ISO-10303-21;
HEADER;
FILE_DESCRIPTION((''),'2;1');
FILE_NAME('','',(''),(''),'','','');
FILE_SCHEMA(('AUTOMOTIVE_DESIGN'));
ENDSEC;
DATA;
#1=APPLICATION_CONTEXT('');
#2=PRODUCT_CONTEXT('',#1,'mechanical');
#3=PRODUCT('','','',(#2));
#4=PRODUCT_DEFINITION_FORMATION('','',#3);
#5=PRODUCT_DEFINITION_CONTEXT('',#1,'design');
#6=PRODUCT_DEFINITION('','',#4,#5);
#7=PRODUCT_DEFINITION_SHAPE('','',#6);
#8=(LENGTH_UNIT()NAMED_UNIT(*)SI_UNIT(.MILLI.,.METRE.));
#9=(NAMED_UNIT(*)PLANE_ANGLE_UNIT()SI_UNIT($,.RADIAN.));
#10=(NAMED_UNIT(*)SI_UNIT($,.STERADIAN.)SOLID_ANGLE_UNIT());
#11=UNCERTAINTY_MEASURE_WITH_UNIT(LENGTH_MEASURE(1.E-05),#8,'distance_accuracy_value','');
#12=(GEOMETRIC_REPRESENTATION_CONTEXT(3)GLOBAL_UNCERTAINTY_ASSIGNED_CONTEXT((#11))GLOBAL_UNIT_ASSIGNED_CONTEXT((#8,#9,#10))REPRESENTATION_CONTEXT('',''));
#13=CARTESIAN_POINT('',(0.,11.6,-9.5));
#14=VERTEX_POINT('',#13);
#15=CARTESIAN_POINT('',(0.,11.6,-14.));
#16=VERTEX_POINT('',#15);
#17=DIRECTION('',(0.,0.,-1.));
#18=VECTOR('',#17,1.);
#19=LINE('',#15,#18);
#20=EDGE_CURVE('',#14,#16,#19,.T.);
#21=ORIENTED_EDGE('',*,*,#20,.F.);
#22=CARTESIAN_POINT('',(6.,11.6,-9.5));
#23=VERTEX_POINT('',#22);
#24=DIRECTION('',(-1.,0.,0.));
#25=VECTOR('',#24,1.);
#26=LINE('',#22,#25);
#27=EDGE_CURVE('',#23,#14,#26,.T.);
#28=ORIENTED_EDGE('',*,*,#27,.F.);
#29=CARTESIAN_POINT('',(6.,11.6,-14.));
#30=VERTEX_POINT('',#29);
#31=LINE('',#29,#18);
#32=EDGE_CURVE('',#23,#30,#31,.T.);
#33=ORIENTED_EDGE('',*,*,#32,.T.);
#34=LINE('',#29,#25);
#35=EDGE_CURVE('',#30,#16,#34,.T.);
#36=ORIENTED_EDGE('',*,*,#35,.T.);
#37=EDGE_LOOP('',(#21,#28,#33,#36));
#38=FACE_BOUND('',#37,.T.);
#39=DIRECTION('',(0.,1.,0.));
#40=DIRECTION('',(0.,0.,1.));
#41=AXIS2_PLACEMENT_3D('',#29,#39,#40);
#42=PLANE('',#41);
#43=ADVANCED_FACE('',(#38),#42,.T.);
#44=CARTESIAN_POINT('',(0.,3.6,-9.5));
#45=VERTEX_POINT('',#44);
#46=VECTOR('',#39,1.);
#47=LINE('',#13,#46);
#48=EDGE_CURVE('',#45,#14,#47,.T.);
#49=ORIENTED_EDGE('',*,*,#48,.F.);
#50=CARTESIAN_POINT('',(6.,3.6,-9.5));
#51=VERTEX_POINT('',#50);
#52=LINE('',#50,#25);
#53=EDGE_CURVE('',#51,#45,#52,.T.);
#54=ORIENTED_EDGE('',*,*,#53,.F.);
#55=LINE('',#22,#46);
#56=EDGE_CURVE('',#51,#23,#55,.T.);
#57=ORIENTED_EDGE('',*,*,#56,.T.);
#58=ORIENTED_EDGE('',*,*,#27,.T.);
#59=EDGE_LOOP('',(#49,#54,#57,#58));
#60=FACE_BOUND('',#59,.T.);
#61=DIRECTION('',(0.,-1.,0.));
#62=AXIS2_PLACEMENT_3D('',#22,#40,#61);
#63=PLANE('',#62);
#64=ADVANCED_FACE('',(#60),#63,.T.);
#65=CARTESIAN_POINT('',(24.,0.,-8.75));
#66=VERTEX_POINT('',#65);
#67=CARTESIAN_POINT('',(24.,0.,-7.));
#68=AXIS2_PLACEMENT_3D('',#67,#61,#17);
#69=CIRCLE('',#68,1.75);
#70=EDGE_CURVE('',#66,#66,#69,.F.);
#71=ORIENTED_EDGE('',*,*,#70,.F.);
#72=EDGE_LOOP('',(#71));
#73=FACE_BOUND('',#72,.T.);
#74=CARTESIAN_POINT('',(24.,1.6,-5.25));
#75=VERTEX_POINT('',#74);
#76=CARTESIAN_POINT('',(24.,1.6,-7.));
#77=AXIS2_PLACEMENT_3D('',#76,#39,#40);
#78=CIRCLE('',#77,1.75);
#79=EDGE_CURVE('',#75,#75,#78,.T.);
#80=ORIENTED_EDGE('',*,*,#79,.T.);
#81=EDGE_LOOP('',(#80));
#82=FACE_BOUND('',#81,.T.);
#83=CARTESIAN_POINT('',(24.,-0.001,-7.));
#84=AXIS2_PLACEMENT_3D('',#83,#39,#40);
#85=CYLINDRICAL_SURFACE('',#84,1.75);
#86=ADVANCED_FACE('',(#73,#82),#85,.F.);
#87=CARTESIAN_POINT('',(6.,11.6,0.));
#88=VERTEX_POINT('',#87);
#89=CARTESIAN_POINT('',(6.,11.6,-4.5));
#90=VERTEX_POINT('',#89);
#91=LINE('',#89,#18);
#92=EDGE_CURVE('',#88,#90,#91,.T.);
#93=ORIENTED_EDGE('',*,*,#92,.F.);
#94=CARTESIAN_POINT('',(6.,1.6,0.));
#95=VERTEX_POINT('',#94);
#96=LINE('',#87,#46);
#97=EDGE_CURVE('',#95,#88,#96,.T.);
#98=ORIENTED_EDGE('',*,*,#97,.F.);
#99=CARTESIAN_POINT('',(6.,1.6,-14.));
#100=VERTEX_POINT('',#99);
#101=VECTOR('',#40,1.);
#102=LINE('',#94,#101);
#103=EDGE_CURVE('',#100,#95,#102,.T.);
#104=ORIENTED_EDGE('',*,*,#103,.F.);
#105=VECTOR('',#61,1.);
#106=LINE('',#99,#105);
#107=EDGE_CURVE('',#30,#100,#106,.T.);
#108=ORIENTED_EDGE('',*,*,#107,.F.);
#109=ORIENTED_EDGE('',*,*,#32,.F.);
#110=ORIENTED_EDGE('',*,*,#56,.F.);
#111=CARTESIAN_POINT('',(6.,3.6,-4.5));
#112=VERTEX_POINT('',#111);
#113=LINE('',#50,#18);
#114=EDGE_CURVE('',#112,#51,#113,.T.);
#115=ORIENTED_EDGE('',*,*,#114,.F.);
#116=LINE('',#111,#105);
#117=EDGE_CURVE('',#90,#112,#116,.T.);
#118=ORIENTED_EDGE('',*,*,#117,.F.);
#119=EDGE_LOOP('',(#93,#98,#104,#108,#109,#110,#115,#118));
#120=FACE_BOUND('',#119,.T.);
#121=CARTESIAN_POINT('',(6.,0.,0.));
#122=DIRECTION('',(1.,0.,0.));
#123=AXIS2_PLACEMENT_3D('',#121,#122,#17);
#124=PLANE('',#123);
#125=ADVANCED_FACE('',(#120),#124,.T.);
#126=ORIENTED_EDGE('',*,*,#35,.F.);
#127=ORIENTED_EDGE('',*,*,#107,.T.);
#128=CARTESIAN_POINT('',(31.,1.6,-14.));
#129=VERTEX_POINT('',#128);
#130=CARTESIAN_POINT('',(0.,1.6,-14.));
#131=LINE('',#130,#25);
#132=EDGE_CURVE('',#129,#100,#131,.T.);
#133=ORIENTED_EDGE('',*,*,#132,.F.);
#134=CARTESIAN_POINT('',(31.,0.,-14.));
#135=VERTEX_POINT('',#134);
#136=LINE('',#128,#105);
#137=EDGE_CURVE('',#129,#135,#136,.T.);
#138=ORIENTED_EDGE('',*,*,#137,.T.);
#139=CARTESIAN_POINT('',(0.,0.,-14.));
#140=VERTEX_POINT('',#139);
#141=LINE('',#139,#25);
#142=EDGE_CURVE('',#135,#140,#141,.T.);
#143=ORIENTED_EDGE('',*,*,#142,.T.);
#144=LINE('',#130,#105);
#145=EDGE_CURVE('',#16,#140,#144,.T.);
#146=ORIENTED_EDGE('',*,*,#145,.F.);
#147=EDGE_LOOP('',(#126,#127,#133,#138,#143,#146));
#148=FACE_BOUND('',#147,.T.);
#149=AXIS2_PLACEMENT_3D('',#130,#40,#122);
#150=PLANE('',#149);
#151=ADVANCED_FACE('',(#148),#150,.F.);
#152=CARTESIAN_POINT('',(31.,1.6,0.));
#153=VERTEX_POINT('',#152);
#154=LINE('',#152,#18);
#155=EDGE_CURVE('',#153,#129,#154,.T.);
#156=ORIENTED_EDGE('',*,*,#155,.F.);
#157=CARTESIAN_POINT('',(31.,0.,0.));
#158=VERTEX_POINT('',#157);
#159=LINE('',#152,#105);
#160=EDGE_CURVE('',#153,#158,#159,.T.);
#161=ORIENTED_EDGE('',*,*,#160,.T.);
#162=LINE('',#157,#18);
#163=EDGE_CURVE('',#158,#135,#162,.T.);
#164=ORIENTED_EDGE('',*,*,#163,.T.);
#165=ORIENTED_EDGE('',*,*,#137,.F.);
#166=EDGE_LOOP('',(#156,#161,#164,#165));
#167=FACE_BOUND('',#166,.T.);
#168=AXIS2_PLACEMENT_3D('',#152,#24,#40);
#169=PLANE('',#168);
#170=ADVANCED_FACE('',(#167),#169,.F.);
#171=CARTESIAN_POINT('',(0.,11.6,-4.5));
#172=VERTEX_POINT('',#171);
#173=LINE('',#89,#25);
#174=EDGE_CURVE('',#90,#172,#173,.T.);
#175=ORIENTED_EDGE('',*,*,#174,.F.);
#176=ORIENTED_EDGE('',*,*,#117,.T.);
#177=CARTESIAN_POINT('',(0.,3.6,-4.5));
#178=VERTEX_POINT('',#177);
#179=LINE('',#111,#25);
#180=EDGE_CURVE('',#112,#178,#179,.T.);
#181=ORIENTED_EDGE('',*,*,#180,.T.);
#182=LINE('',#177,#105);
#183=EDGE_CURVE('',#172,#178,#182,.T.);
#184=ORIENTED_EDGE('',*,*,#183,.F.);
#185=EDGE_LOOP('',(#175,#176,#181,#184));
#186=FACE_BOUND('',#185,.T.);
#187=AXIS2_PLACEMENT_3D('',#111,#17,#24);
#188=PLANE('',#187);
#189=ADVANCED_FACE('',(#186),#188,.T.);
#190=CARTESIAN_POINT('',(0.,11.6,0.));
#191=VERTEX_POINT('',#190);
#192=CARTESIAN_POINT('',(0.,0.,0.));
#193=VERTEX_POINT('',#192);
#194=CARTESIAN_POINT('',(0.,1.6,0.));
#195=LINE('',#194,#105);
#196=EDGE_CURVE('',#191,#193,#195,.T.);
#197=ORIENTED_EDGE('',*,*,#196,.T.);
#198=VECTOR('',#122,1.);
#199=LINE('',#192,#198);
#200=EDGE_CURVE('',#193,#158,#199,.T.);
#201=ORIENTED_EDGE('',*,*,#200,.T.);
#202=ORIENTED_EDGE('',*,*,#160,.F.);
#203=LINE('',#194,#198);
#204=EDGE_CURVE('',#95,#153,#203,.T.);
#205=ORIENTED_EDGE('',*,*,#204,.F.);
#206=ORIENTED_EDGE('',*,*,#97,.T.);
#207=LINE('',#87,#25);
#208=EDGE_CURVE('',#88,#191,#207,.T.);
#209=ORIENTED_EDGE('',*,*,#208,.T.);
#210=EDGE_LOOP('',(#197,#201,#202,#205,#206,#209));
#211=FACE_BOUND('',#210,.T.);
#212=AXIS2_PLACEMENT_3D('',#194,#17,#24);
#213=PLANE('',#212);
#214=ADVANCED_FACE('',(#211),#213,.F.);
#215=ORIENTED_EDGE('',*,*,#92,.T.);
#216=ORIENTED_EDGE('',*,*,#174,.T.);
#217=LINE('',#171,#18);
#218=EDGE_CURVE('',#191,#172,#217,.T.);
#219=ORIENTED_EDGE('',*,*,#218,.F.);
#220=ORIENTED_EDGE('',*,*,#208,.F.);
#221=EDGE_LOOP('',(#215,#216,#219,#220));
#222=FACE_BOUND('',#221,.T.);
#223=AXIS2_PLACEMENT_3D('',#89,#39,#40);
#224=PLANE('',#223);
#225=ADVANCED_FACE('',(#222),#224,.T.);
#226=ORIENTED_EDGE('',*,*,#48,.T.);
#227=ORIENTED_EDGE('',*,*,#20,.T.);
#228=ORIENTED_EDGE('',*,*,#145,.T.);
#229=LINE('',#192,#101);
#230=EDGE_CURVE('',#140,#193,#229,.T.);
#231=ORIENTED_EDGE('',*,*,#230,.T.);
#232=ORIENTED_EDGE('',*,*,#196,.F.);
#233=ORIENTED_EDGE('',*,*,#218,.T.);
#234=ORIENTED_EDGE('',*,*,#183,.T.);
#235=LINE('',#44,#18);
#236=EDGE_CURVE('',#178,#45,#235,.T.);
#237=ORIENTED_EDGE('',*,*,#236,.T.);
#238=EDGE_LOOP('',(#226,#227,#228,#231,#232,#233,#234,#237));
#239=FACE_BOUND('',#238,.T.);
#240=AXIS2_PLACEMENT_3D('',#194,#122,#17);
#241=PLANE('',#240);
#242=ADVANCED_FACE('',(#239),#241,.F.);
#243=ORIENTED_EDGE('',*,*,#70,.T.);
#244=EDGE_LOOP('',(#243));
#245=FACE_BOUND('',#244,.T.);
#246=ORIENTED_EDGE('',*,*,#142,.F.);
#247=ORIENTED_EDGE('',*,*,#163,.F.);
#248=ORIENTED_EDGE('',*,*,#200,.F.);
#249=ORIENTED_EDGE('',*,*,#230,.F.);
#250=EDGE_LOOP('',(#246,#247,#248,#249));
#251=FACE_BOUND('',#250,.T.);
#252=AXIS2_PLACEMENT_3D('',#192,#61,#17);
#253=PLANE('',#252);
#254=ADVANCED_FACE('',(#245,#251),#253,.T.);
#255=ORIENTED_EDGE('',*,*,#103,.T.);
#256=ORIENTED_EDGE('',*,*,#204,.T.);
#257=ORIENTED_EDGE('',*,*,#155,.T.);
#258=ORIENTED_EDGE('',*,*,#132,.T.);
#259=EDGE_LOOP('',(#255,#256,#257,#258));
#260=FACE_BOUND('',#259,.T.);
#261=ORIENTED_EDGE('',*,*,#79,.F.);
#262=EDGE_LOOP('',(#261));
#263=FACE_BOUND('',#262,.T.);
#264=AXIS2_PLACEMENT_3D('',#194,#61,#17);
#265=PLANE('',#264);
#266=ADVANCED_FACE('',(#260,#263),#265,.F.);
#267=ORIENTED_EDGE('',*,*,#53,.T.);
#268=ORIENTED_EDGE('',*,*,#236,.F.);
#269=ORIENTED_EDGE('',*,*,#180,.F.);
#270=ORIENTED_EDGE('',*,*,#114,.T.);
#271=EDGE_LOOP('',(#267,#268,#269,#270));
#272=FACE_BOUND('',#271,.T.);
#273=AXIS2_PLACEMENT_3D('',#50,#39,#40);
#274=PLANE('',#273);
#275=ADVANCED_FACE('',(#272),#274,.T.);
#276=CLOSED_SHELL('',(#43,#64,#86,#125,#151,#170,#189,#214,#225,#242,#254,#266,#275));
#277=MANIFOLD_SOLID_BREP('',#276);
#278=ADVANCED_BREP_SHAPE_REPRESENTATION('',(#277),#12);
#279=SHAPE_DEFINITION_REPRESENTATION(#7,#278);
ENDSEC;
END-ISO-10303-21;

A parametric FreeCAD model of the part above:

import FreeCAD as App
import Part
import Sketcher

V = App.Vector
Q = App.Units.Quantity


def add_polygon(sketch, points):
    """Adds a closed chain of lines whose ends are joined by coincident constraints."""
    first, n = sketch.GeometryCount, len(points)
    for a, b in zip(points, points[1:] + points[:1]):
        sketch.addGeometry(Part.LineSegment(App.Vector(*a, 0), App.Vector(*b, 0)), False)
    for i in range(n):
        sketch.addConstraint(Sketcher.Constraint("Coincident", first + i, 2, first + (i + 1) % n, 1))

doc = App.newDocument("Part")
body = doc.addObject("PartDesign::Body", "Body")

# Sketch on XZ plane
sketch1 = doc.addObject("Sketcher::SketchObject", "Sketch")
body.addObject(sketch1)
sketch1.AttachmentSupport = (doc.XZ_Plane, [""])
sketch1.MapMode = "FlatFace"
add_polygon(sketch1, [(0, -14), (0, 0), (31, 0), (31, -14)])  # lines 0-3
sketch1.addConstraint([
    Sketcher.Constraint("Vertical", 0),
    Sketcher.Constraint("Horizontal", 1),
    Sketcher.Constraint("Vertical", 2),
    Sketcher.Constraint("Horizontal", 3),
    Sketcher.Constraint("Coincident", 0, 2, -1, 1),
    Sketcher.Constraint("DistanceX", 1, 1, 1, 2, Q("31 mm")),
    Sketcher.Constraint("DistanceY", 0, 1, 0, 2, Q("14 mm")),
])
pad1 = doc.addObject("PartDesign::Pad", "Pad")
body.addObject(pad1)
pad1.Profile = sketch1
pad1.Length = 1.6
pad1.Reversed = True

# Sketch on YZ plane
sketch2 = doc.addObject("Sketcher::SketchObject", "Sketch001")
body.addObject(sketch2)
sketch2.AttachmentSupport = (doc.YZ_Plane, [""])
sketch2.MapMode = "FlatFace"
add_polygon(sketch2, [(11.6, -14), (1.6, -14), (1.6, 0), (11.6, 0), (11.6, -4.5), (3.6, -4.5), (3.6, -9.5), (11.6, -9.5)])  # lines 0-7
sketch2.addConstraint([
    Sketcher.Constraint("Horizontal", 0),
    Sketcher.Constraint("Vertical", 1),
    Sketcher.Constraint("Horizontal", 2),
    Sketcher.Constraint("Vertical", 3),
    Sketcher.Constraint("Horizontal", 4),
    Sketcher.Constraint("Vertical", 5),
    Sketcher.Constraint("Horizontal", 6),
    Sketcher.Constraint("Vertical", 7),
    Sketcher.Constraint("PointOnObject", 1, 2, -1),
    Sketcher.Constraint("Vertical", 3, 2, 6, 2),
    Sketcher.Constraint("Equal", 3, 7),
    Sketcher.Constraint("DistanceX", 0, 2, 0, 1, Q("10 mm")),
    Sketcher.Constraint("DistanceX", 4, 2, 4, 1, Q("8 mm")),
    Sketcher.Constraint("DistanceY", 1, 1, 1, 2, Q("14 mm")),
    Sketcher.Constraint("DistanceY", 5, 2, 5, 1, Q("5 mm")),
    Sketcher.Constraint("DistanceX", -1, 1, 0, 2, Q("1.6 mm")),
])
pad2 = doc.addObject("PartDesign::Pad", "Pad001")
body.addObject(pad2)
pad2.Profile = sketch2
pad2.Length = 6

# Sketch on XZ plane
sketch3 = doc.addObject("Sketcher::SketchObject", "Sketch002")
body.addObject(sketch3)
sketch3.AttachmentSupport = (doc.XZ_Plane, [""])
sketch3.MapMode = "FlatFace"
sketch3.AttachmentOffset = App.Placement(V(0, 0, -1.6), App.Rotation())
sketch3.addGeometry(Part.Circle(V(24, -7, 0), V(0, 0, 1), 1.8), False)
sketch3.addConstraint([
    Sketcher.Constraint("Diameter", 0, Q("3.5 mm")),
    Sketcher.Constraint("DistanceX", -1, 1, 0, 3, Q("24 mm")),
    Sketcher.Constraint("DistanceY", 0, 3, -1, 1, Q("7 mm")),
])
pocket1 = doc.addObject("PartDesign::Pocket", "Pocket")
body.addObject(pocket1)
pocket1.Profile = sketch3
pocket1.Type = "UpToFirst"
pocket1.Reversed = True

doc.recompute()
